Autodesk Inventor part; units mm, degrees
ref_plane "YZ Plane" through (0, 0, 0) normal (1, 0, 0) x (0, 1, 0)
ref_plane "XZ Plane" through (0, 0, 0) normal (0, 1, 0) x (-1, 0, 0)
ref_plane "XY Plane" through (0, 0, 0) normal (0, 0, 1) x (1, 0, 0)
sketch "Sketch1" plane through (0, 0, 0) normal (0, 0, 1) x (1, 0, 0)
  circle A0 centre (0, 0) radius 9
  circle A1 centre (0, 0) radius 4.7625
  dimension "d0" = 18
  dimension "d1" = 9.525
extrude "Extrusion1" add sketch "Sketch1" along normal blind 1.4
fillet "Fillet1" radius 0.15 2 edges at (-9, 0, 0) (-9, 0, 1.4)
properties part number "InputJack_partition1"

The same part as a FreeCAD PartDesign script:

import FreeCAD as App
import Part
import Sketcher
Q = App.Units.Quantity


def edges_at(feature, points):
    """Names of the edges that pass closest to the given points."""
    edges = feature.Shape.Edges
    near = lambda p: min(range(len(edges)), key=lambda i: edges[i].distToShape(Part.Vertex(*p))[0])
    return sorted({f"Edge{near(p) + 1}" for p in points})

doc = App.newDocument("Part")
body = doc.addObject("PartDesign::Body", "Body")

# Sketch on XY plane
sketch1 = body.newObject("Sketcher::SketchObject", "Sketch")
sketch1.AttachmentSupport = (doc.getObject("XY_Plane"), [""])
sketch1.MapMode = "FlatFace"
sketch1.addGeometry([
    Part.Circle(App.Vector(0, 0, 0), App.Vector(0, 0, 1), 9),
    Part.Circle(App.Vector(0, 0, 0), App.Vector(0, 0, 1), 4.8),
], False)
sketch1.addConstraint([
    Sketcher.Constraint("Coincident", 0, 3, -1, 1),
    Sketcher.Constraint("Coincident", 1, 3, -1, 1),
    Sketcher.Constraint("Diameter", 0, Q("18 mm")),
    Sketcher.Constraint("Diameter", 1, Q("9.525 mm")),
])
pad1 = body.newObject("PartDesign::Pad", "Pad")
pad1.Profile = sketch1
pad1.Length = 1.4
doc.recompute()

fillet = body.newObject("PartDesign::Fillet", "Fillet")
fillet.Base = (pad1, edges_at(pad1, [(-9, 0, 0), (-9, 0, 1.4)]))
fillet.Radius = 0.15

doc.recompute()
